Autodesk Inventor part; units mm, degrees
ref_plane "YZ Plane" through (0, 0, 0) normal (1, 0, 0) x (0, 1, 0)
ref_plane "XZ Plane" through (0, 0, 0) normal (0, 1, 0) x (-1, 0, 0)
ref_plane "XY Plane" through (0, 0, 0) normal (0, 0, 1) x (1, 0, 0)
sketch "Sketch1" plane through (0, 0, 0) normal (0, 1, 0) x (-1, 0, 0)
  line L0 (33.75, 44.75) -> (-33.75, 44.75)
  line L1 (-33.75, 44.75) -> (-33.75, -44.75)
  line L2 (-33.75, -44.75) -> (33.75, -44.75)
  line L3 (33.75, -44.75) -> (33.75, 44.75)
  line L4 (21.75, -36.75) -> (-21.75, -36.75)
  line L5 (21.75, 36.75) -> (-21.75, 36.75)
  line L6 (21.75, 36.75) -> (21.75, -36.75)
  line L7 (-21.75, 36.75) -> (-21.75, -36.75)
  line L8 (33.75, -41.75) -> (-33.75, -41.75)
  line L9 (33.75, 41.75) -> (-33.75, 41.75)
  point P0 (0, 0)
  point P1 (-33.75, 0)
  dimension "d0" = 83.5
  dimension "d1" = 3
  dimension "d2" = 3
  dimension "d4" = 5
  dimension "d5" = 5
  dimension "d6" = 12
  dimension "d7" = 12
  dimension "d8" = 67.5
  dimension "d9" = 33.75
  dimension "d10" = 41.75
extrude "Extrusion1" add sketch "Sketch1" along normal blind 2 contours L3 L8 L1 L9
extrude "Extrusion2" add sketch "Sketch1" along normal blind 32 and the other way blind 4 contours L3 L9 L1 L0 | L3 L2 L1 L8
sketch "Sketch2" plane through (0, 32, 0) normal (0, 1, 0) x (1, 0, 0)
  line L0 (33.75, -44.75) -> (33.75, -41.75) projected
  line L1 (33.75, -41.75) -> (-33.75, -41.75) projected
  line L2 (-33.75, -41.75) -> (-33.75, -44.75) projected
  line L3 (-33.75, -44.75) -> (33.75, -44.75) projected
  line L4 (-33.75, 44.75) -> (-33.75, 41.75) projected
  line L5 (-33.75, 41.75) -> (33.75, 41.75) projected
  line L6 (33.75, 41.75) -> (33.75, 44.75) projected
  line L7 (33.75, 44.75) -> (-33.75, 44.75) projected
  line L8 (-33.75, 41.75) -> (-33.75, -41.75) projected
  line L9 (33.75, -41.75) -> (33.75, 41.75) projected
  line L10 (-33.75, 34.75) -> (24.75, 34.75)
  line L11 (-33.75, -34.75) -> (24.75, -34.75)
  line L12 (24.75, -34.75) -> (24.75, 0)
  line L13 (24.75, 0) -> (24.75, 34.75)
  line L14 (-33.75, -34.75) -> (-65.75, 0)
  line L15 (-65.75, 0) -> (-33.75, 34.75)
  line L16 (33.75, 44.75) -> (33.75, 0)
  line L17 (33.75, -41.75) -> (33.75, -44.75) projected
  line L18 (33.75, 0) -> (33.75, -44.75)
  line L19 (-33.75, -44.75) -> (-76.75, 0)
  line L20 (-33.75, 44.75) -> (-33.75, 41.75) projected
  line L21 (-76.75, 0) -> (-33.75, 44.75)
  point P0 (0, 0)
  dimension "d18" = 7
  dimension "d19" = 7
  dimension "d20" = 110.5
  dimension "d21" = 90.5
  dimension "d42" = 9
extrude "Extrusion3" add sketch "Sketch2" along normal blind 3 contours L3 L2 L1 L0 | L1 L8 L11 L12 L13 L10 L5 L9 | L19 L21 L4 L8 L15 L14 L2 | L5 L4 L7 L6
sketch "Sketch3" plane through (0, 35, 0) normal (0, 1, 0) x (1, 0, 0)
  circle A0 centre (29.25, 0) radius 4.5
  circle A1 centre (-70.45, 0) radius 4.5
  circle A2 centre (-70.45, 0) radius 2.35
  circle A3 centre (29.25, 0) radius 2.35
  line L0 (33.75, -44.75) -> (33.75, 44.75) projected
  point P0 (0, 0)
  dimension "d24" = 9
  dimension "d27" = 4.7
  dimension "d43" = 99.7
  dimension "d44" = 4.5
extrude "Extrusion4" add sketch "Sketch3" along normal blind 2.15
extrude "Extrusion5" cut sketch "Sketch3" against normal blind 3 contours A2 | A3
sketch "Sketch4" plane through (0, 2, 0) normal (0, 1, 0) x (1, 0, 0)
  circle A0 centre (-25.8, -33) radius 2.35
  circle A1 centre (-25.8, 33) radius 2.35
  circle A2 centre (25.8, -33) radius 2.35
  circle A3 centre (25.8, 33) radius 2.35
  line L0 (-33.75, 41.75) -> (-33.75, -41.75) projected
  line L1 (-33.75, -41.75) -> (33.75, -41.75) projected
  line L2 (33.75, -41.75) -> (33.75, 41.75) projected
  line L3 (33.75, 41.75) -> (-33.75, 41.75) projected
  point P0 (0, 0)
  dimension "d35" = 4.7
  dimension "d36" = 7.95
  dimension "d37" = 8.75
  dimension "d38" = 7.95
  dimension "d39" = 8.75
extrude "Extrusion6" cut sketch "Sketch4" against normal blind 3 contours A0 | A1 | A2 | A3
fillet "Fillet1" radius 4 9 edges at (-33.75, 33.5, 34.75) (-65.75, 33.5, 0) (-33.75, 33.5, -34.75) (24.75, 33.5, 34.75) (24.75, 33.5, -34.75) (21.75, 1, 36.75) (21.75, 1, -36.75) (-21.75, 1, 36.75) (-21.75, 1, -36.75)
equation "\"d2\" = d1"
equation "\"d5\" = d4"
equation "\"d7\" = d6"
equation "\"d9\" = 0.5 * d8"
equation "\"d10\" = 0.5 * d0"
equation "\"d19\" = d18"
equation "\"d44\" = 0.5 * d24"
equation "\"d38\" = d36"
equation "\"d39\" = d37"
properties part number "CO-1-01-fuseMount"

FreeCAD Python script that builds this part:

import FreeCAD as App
import Part
import Sketcher
from FreeCAD import Vector
Q = App.Units.Quantity


def edges_at(feature, points):
    """Names of the edges that pass closest to the given points."""
    edges = feature.Shape.Edges
    near = lambda p: min(range(len(edges)), key=lambda i: edges[i].distToShape(Part.Vertex(*p))[0])
    return sorted({f"Edge{near(p) + 1}" for p in points})


def add_polygon(sketch, points):
    """Adds a closed chain of lines whose ends are joined by coincident constraints."""
    first, n = sketch.GeometryCount, len(points)
    for a, b in zip(points, points[1:] + points[:1]):
        sketch.addGeometry(Part.LineSegment(App.Vector(*a, 0), App.Vector(*b, 0)), False)
    for i in range(n):
        sketch.addConstraint(Sketcher.Constraint("Coincident", first + i, 2, first + (i + 1) % n, 1))

doc = App.newDocument("Part")
body = doc.addObject("PartDesign::Body", "Body")

# Sketch on XZ plane
sketch1 = body.newObject("Sketcher::SketchObject", "Sketch")
sketch1.AttachmentSupport = (doc.getObject("XZ_Plane"), [""])
sketch1.MapMode = "FlatFace"
add_polygon(sketch1, [(-34, -42), (-34, 42), (34, 42), (34, -42)])  # lines 0-3
add_polygon(sketch1, [(-22, 37), (-22, -37), (22, -37), (22, 37)])  # lines 4-7
sketch1.addConstraint([
    Sketcher.Constraint("Vertical", 0),
    Sketcher.Constraint("Horizontal", 1),
    Sketcher.Constraint("Vertical", 2),
    Sketcher.Constraint("Horizontal", 3),
    Sketcher.Constraint("Vertical", 4),
    Sketcher.Constraint("Horizontal", 5),
    Sketcher.Constraint("Vertical", 6),
    Sketcher.Constraint("Horizontal", 7),
    Sketcher.Constraint("Symmetric", 0, 2, 2, 2, -1, 1),
    Sketcher.Constraint("Symmetric", 4, 2, 6, 2, -1, 1),
    Sketcher.Constraint("DistanceX", 1, 1, 1, 2, Q("67.5 mm")),
    Sketcher.Constraint("DistanceY", 0, 1, 0, 2, Q("83.5 mm")),
    Sketcher.Constraint("DistanceX", 3, 2, 4, 2, Q("12 mm")),
    Sketcher.Constraint("DistanceY", 3, 2, 4, 2, Q("5 mm")),
])
pad1 = body.newObject("PartDesign::Pad", "Pad")
pad1.Profile = sketch1
pad1.Length = 2
pad1.Reversed = True

# Sketch on XZ plane
sketch2 = body.newObject("Sketcher::SketchObject", "Sketch001")
sketch2.AttachmentSupport = (doc.getObject("XZ_Plane"), [""])
sketch2.MapMode = "FlatFace"
add_polygon(sketch2, [(-33.8, 41.8), (-33.8, 44.8), (33.8, 44.8), (33.8, 41.8)])  # lines 0-3
add_polygon(sketch2, [(-33.8, -44.8), (-33.8, -41.8), (33.8, -41.8), (33.8, -44.8)])  # lines 4-7
sketch2.addConstraint([
    Sketcher.Constraint("Vertical", 0),
    Sketcher.Constraint("Horizontal", 1),
    Sketcher.Constraint("Vertical", 2),
    Sketcher.Constraint("Horizontal", 3),
    Sketcher.Constraint("Vertical", 4),
    Sketcher.Constraint("Horizontal", 5),
    Sketcher.Constraint("Vertical", 6),
    Sketcher.Constraint("Horizontal", 7),
    Sketcher.Constraint("Symmetric", 2, 2, 4, 2, -1, 1),
    Sketcher.Constraint("Symmetric", 0, 2, 6, 2, -1, 1),
    Sketcher.Constraint("Vertical", 3, 2, 4, 2),
    Sketcher.Constraint("DistanceY", 0, 1, 0, 2, Q("3 mm")),
    Sketcher.Constraint("DistanceX", 1, 1, 1, 2, Q("67.5 mm")),
    Sketcher.Constraint("DistanceY", 4, 2, 3, 2, Q("83.5 mm")),
])
pad2 = body.newObject("PartDesign::Pad", "Pad001")
pad2.Profile = sketch2
pad2.Type = "TwoLengths"
pad2.Length = 32
pad2.Length2 = 4
pad2.Reversed = True

# Sketch on XZ plane
sketch3 = body.newObject("Sketcher::SketchObject", "Sketch002")
sketch3.AttachmentSupport = (doc.getObject("XZ_Plane"), [""])
sketch3.MapMode = "FlatFace"
sketch3.AttachmentOffset = App.Placement(Vector(0, 0, -32), App.Rotation())
add_polygon(sketch3, [(-34, 45), (34, 45), (34, -45), (-34, -45), (-77, 0)])  # lines 0-4
add_polygon(sketch3, [(-66, 0), (-34, -35), (25, -35), (25, 35), (-34, 35)])  # lines 5-9
sketch3.addConstraint([
    Sketcher.Constraint("Horizontal", 0),
    Sketcher.Constraint("Vertical", 1),
    Sketcher.Constraint("Horizontal", 2),
    Sketcher.Constraint("Horizontal", 6),
    Sketcher.Constraint("Vertical", 7),
    Sketcher.Constraint("Horizontal", 8),
    Sketcher.Constraint("Symmetric", 0, 2, 2, 2, -1, 1),
    Sketcher.Constraint("Symmetric", 5, 2, 8, 2, -1),
    Sketcher.Constraint("PointOnObject", 3, 2, -1),
    Sketcher.Constraint("PointOnObject", 9, 2, -1),
    Sketcher.Constraint("Vertical", 2, 2, 4, 2),
    Sketcher.Constraint("Vertical", 4, 2, 5, 2),
    Sketcher.Constraint("DistanceX", 6, 2, 1, 2, Q("9 mm")),
    Sketcher.Constraint("DistanceX", 3, 2, 0, 2, Q("110.5 mm")),
    Sketcher.Constraint("DistanceX", 0, 1, 0, 2, Q("67.5 mm")),
    Sketcher.Constraint("DistanceY", 1, 2, 1, 1, Q("89.5 mm")),
    Sketcher.Constraint("DistanceY", 7, 1, 7, 2, Q("69.5 mm")),
    Sketcher.Constraint("DistanceX", 3, 2, 9, 2, Q("11 mm")),
])
pad3 = body.newObject("PartDesign::Pad", "Pad002")
pad3.Profile = sketch3
pad3.Length = 3
pad3.Reversed = True

# Sketch on XZ plane
sketch4 = body.newObject("Sketcher::SketchObject", "Sketch003")
sketch4.AttachmentSupport = (doc.getObject("XZ_Plane"), [""])
sketch4.MapMode = "FlatFace"
sketch4.AttachmentOffset = App.Placement(Vector(0, 0, -35), App.Rotation())
sketch4.addGeometry([
    Part.Circle(Vector(29.2, 0, 0), Vector(0, 0, 1), 4.5),
    Part.Circle(Vector(29.2, 0, 0), Vector(0, 0, 1), 2.4),
    Part.Circle(Vector(-70.5, 0, 0), Vector(0, 0, 1), 4.5),
    Part.Circle(Vector(-70.5, 0, 0), Vector(0, 0, 1), 2.4),
], False)
sketch4.addConstraint([
    Sketcher.Constraint("Coincident", 1, 3, 0, 3),
    Sketcher.Constraint("Coincident", 3, 3, 2, 3),
    Sketcher.Constraint("Equal", 0, 2),
    Sketcher.Constraint("Equal", 1, 3),
    Sketcher.Constraint("PointOnObject", 0, 3, -1),
    Sketcher.Constraint("PointOnObject", 2, 3, -1),
    Sketcher.Constraint("Diameter", 0, Q("9 mm")),
    Sketcher.Constraint("Diameter", 1, Q("4.7 mm")),
    Sketcher.Constraint("DistanceX", 2, 3, 0, 3, Q("99.7 mm")),
    Sketcher.Constraint("DistanceX", -1, 1, 0, 3, Q("29.25 mm")),
])
pad4 = body.newObject("PartDesign::Pad", "Pad003")
pad4.Profile = sketch4
pad4.Length = 2.15
pad4.Reversed = True

# Sketch on XZ plane
sketch5 = body.newObject("Sketcher::SketchObject", "Sketch004")
sketch5.AttachmentSupport = (doc.getObject("XZ_Plane"), [""])
sketch5.MapMode = "FlatFace"
sketch5.AttachmentOffset = App.Placement(Vector(0, 0, -35), App.Rotation())
sketch5.addGeometry([
    Part.Circle(Vector(-70.5, 0, 0), Vector(0, 0, 1), 2.4),
    Part.Circle(Vector(29.2, 0, 0), Vector(0, 0, 1), 2.4),
], False)
sketch5.addConstraint([
    Sketcher.Constraint("Equal", 0, 1),
    Sketcher.Constraint("PointOnObject", 0, 3, -1),
    Sketcher.Constraint("PointOnObject", 1, 3, -1),
    Sketcher.Constraint("Diameter", 0, Q("4.7 mm")),
    Sketcher.Constraint("DistanceX", 0, 3, 1, 3, Q("99.7 mm")),
    Sketcher.Constraint("DistanceX", 0, 3, -1, 1, Q("70.45 mm")),
])
pocket1 = body.newObject("PartDesign::Pocket", "Pocket")
pocket1.Profile = sketch5
pocket1.Length = 3
pocket1.Reversed = True

# Sketch on XZ plane
sketch6 = body.newObject("Sketcher::SketchObject", "Sketch005")
sketch6.AttachmentSupport = (doc.getObject("XZ_Plane"), [""])
sketch6.MapMode = "FlatFace"
sketch6.AttachmentOffset = App.Placement(Vector(0, 0, -2), App.Rotation())
sketch6.addGeometry([
    Part.Circle(Vector(-25.8, 33, 0), Vector(0, 0, 1), 2.4),
    Part.Circle(Vector(-25.8, -33, 0), Vector(0, 0, 1), 2.4),
    Part.Circle(Vector(25.8, 33, 0), Vector(0, 0, 1), 2.4),
    Part.Circle(Vector(25.8, -33, 0), Vector(0, 0, 1), 2.4),
], False)
sketch6.addConstraint([
    Sketcher.Constraint("Equal", 0, 1),
    Sketcher.Constraint("Equal", 1, 2),
    Sketcher.Constraint("Equal", 2, 3),
    Sketcher.Constraint("Symmetric", 1, 3, 2, 3, -1, 1),
    Sketcher.Constraint("Symmetric", 0, 3, 3, 3, -1, 1),
    Sketcher.Constraint("Symmetric", 0, 3, 2, 3, -2),
    Sketcher.Constraint("Diameter", 0, Q("4.7 mm")),
    Sketcher.Constraint("DistanceY", -1, 1, 0, 3, Q("33 mm")),
    Sketcher.Constraint("DistanceX", 0, 3, -1, 1, Q("25.8 mm")),
])
pocket2 = body.newObject("PartDesign::Pocket", "Pocket001")
pocket2.Profile = sketch6
pocket2.Length = 3
pocket2.Reversed = True
doc.recompute()

fillet = body.newObject("PartDesign::Fillet", "Fillet")
fillet.Base = (pocket2, edges_at(pocket2, [
    (-33.75, 33.5, 34.75),
    (-65.75, 33.5, 0),
    (-33.75, 33.5, -34.75),
    (24.75, 33.5, 34.75),
    (24.75, 33.5, -34.75),
    (21.75, 1, 36.75),
    (21.75, 1, -36.75),
    (-21.75, 1, 36.75),
    (-21.75, 1, -36.75),
]))
fillet.Radius = 4

doc.recompute()
